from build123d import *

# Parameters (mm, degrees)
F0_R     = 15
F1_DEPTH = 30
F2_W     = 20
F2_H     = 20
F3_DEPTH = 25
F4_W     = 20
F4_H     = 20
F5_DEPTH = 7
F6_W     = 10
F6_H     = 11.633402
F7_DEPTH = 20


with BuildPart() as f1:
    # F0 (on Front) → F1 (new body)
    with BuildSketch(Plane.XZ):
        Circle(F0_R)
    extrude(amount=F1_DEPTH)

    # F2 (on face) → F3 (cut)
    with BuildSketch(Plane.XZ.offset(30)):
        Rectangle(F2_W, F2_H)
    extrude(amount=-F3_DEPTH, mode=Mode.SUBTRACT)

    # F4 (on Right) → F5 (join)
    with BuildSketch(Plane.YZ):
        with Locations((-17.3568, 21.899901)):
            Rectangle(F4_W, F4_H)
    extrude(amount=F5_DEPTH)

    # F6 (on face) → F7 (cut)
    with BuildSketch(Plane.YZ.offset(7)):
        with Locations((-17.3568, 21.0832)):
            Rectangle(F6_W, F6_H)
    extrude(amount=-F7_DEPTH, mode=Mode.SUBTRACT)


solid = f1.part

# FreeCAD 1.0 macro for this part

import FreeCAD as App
import Part
import Sketcher
from FreeCAD import Vector

doc = App.newDocument("Part")
body = doc.addObject("PartDesign::Body", "Body")

sketch1 = body.newObject("Sketcher::SketchObject", "Sketch")
sketch1.AttachmentSupport = (doc.getObject("XZ_Plane"), [""])
sketch1.MapMode = "FlatFace"
sketch1.addGeometry(Part.Circle(Vector(0, 0, 0), Vector(0, 0, 1), 15), False)
sketch1.addConstraint([
    Sketcher.Constraint("Coincident", 0, 3, -1, 1),
    Sketcher.Constraint("Diameter", 0, 30.0),
])
pad1 = body.newObject("PartDesign::Pad", "Pad")
pad1.Profile = sketch1
pad1.Length = 30

sketch2 = body.newObject("Sketcher::SketchObject", "Sketch001")
sketch2.AttachmentSupport = (doc.getObject("XZ_Plane"), [""])
sketch2.MapMode = "FlatFace"
sketch2.AttachmentOffset = App.Placement(Vector(0, 0, 30), App.Rotation())
sketch2.addGeometry([
    Part.LineSegment(Vector(-10, 10, 0), Vector(-10, -10, 0)),
    Part.LineSegment(Vector(-10, -10, 0), Vector(10, -10, 0)),
    Part.LineSegment(Vector(10, -10, 0), Vector(10, 10, 0)),
    Part.LineSegment(Vector(10, 10, 0), Vector(-10, 10, 0)),
], False)
sketch2.addConstraint([
    Sketcher.Constraint("Coincident", 0, 2, 1, 1),
    Sketcher.Constraint("Coincident", 1, 2, 2, 1),
    Sketcher.Constraint("Coincident", 2, 2, 3, 1),
    Sketcher.Constraint("Coincident", 3, 2, 0, 1),
    Sketcher.Constraint("Vertical", 0),
    Sketcher.Constraint("Horizontal", 1),
    Sketcher.Constraint("Vertical", 2),
    Sketcher.Constraint("Horizontal", 3),
    Sketcher.Constraint("Symmetric", 0, 2, 2, 2, -1, 1),
    Sketcher.Constraint("Equal", 3, 0),
    Sketcher.Constraint("DistanceX", 1, 1, 1, 2, 20.0),
])
pocket1 = body.newObject("PartDesign::Pocket", "Pocket")
pocket1.Profile = sketch2
pocket1.Length = 25

sketch3 = body.newObject("Sketcher::SketchObject", "Sketch002")
sketch3.AttachmentSupport = (doc.getObject("YZ_Plane"), [""])
sketch3.MapMode = "FlatFace"
sketch3.addGeometry([
    Part.LineSegment(Vector(-27.3568, 31.899901, 0), Vector(-27.3568, 11.899901, 0)),
    Part.LineSegment(Vector(-27.3568, 11.899901, 0), Vector(-7.3568, 11.899901, 0)),
    Part.LineSegment(Vector(-7.3568, 11.899901, 0), Vector(-7.3568, 31.899901, 0)),
    Part.LineSegment(Vector(-7.3568, 31.899901, 0), Vector(-27.3568, 31.899901, 0)),
], False)
sketch3.addConstraint([
    Sketcher.Constraint("Coincident", 0, 2, 1, 1),
    Sketcher.Constraint("Coincident", 1, 2, 2, 1),
    Sketcher.Constraint("Coincident", 2, 2, 3, 1),
    Sketcher.Constraint("Coincident", 3, 2, 0, 1),
    Sketcher.Constraint("Vertical", 0),
    Sketcher.Constraint("Horizontal", 1),
    Sketcher.Constraint("Vertical", 2),
    Sketcher.Constraint("Horizontal", 3),
    Sketcher.Constraint("Equal", 3, 0),
    Sketcher.Constraint("DistanceX", 1, 1, 1, 2, 20.0),
    Sketcher.Constraint("DistanceX", 0, 2, -1, 1, 27.3568),
    Sketcher.Constraint("DistanceY", -1, 1, 0, 2, 11.899901),
])
pad2 = body.newObject("PartDesign::Pad", "Pad001")
pad2.Profile = sketch3
pad2.Length = 7

sketch4 = body.newObject("Sketcher::SketchObject", "Sketch003")
sketch4.AttachmentSupport = (doc.getObject("YZ_Plane"), [""])
sketch4.MapMode = "FlatFace"
sketch4.AttachmentOffset = App.Placement(Vector(0, 0, 7), App.Rotation())
sketch4.addGeometry([
    Part.LineSegment(Vector(-22.3568, 26.899901, 0), Vector(-22.3568, 15.266499, 0)),
    Part.LineSegment(Vector(-22.3568, 15.266499, 0), Vector(-12.3568, 15.266499, 0)),
    Part.LineSegment(Vector(-12.3568, 15.266499, 0), Vector(-12.3568, 26.899901, 0)),
    Part.LineSegment(Vector(-12.3568, 26.899901, 0), Vector(-22.3568, 26.899901, 0)),
], False)
sketch4.addConstraint([
    Sketcher.Constraint("Coincident", 0, 2, 1, 1),
    Sketcher.Constraint("Coincident", 1, 2, 2, 1),
    Sketcher.Constraint("Coincident", 2, 2, 3, 1),
    Sketcher.Constraint("Coincident", 3, 2, 0, 1),
    Sketcher.Constraint("Vertical", 0),
    Sketcher.Constraint("Horizontal", 1),
    Sketcher.Constraint("Vertical", 2),
    Sketcher.Constraint("Horizontal", 3),
    Sketcher.Constraint("DistanceX", 1, 1, 1, 2, 10.0),
    Sketcher.Constraint("DistanceX", 0, 2, -1, 1, 22.3568),
    Sketcher.Constraint("DistanceY", -1, 1, 0, 2, 15.266499),
    Sketcher.Constraint("DistanceY", -1, 1, 2, 2, 26.899901),
])
pocket2 = body.newObject("PartDesign::Pocket", "Pocket001")
pocket2.Profile = sketch4
pocket2.Length = 20

doc.recompute()
